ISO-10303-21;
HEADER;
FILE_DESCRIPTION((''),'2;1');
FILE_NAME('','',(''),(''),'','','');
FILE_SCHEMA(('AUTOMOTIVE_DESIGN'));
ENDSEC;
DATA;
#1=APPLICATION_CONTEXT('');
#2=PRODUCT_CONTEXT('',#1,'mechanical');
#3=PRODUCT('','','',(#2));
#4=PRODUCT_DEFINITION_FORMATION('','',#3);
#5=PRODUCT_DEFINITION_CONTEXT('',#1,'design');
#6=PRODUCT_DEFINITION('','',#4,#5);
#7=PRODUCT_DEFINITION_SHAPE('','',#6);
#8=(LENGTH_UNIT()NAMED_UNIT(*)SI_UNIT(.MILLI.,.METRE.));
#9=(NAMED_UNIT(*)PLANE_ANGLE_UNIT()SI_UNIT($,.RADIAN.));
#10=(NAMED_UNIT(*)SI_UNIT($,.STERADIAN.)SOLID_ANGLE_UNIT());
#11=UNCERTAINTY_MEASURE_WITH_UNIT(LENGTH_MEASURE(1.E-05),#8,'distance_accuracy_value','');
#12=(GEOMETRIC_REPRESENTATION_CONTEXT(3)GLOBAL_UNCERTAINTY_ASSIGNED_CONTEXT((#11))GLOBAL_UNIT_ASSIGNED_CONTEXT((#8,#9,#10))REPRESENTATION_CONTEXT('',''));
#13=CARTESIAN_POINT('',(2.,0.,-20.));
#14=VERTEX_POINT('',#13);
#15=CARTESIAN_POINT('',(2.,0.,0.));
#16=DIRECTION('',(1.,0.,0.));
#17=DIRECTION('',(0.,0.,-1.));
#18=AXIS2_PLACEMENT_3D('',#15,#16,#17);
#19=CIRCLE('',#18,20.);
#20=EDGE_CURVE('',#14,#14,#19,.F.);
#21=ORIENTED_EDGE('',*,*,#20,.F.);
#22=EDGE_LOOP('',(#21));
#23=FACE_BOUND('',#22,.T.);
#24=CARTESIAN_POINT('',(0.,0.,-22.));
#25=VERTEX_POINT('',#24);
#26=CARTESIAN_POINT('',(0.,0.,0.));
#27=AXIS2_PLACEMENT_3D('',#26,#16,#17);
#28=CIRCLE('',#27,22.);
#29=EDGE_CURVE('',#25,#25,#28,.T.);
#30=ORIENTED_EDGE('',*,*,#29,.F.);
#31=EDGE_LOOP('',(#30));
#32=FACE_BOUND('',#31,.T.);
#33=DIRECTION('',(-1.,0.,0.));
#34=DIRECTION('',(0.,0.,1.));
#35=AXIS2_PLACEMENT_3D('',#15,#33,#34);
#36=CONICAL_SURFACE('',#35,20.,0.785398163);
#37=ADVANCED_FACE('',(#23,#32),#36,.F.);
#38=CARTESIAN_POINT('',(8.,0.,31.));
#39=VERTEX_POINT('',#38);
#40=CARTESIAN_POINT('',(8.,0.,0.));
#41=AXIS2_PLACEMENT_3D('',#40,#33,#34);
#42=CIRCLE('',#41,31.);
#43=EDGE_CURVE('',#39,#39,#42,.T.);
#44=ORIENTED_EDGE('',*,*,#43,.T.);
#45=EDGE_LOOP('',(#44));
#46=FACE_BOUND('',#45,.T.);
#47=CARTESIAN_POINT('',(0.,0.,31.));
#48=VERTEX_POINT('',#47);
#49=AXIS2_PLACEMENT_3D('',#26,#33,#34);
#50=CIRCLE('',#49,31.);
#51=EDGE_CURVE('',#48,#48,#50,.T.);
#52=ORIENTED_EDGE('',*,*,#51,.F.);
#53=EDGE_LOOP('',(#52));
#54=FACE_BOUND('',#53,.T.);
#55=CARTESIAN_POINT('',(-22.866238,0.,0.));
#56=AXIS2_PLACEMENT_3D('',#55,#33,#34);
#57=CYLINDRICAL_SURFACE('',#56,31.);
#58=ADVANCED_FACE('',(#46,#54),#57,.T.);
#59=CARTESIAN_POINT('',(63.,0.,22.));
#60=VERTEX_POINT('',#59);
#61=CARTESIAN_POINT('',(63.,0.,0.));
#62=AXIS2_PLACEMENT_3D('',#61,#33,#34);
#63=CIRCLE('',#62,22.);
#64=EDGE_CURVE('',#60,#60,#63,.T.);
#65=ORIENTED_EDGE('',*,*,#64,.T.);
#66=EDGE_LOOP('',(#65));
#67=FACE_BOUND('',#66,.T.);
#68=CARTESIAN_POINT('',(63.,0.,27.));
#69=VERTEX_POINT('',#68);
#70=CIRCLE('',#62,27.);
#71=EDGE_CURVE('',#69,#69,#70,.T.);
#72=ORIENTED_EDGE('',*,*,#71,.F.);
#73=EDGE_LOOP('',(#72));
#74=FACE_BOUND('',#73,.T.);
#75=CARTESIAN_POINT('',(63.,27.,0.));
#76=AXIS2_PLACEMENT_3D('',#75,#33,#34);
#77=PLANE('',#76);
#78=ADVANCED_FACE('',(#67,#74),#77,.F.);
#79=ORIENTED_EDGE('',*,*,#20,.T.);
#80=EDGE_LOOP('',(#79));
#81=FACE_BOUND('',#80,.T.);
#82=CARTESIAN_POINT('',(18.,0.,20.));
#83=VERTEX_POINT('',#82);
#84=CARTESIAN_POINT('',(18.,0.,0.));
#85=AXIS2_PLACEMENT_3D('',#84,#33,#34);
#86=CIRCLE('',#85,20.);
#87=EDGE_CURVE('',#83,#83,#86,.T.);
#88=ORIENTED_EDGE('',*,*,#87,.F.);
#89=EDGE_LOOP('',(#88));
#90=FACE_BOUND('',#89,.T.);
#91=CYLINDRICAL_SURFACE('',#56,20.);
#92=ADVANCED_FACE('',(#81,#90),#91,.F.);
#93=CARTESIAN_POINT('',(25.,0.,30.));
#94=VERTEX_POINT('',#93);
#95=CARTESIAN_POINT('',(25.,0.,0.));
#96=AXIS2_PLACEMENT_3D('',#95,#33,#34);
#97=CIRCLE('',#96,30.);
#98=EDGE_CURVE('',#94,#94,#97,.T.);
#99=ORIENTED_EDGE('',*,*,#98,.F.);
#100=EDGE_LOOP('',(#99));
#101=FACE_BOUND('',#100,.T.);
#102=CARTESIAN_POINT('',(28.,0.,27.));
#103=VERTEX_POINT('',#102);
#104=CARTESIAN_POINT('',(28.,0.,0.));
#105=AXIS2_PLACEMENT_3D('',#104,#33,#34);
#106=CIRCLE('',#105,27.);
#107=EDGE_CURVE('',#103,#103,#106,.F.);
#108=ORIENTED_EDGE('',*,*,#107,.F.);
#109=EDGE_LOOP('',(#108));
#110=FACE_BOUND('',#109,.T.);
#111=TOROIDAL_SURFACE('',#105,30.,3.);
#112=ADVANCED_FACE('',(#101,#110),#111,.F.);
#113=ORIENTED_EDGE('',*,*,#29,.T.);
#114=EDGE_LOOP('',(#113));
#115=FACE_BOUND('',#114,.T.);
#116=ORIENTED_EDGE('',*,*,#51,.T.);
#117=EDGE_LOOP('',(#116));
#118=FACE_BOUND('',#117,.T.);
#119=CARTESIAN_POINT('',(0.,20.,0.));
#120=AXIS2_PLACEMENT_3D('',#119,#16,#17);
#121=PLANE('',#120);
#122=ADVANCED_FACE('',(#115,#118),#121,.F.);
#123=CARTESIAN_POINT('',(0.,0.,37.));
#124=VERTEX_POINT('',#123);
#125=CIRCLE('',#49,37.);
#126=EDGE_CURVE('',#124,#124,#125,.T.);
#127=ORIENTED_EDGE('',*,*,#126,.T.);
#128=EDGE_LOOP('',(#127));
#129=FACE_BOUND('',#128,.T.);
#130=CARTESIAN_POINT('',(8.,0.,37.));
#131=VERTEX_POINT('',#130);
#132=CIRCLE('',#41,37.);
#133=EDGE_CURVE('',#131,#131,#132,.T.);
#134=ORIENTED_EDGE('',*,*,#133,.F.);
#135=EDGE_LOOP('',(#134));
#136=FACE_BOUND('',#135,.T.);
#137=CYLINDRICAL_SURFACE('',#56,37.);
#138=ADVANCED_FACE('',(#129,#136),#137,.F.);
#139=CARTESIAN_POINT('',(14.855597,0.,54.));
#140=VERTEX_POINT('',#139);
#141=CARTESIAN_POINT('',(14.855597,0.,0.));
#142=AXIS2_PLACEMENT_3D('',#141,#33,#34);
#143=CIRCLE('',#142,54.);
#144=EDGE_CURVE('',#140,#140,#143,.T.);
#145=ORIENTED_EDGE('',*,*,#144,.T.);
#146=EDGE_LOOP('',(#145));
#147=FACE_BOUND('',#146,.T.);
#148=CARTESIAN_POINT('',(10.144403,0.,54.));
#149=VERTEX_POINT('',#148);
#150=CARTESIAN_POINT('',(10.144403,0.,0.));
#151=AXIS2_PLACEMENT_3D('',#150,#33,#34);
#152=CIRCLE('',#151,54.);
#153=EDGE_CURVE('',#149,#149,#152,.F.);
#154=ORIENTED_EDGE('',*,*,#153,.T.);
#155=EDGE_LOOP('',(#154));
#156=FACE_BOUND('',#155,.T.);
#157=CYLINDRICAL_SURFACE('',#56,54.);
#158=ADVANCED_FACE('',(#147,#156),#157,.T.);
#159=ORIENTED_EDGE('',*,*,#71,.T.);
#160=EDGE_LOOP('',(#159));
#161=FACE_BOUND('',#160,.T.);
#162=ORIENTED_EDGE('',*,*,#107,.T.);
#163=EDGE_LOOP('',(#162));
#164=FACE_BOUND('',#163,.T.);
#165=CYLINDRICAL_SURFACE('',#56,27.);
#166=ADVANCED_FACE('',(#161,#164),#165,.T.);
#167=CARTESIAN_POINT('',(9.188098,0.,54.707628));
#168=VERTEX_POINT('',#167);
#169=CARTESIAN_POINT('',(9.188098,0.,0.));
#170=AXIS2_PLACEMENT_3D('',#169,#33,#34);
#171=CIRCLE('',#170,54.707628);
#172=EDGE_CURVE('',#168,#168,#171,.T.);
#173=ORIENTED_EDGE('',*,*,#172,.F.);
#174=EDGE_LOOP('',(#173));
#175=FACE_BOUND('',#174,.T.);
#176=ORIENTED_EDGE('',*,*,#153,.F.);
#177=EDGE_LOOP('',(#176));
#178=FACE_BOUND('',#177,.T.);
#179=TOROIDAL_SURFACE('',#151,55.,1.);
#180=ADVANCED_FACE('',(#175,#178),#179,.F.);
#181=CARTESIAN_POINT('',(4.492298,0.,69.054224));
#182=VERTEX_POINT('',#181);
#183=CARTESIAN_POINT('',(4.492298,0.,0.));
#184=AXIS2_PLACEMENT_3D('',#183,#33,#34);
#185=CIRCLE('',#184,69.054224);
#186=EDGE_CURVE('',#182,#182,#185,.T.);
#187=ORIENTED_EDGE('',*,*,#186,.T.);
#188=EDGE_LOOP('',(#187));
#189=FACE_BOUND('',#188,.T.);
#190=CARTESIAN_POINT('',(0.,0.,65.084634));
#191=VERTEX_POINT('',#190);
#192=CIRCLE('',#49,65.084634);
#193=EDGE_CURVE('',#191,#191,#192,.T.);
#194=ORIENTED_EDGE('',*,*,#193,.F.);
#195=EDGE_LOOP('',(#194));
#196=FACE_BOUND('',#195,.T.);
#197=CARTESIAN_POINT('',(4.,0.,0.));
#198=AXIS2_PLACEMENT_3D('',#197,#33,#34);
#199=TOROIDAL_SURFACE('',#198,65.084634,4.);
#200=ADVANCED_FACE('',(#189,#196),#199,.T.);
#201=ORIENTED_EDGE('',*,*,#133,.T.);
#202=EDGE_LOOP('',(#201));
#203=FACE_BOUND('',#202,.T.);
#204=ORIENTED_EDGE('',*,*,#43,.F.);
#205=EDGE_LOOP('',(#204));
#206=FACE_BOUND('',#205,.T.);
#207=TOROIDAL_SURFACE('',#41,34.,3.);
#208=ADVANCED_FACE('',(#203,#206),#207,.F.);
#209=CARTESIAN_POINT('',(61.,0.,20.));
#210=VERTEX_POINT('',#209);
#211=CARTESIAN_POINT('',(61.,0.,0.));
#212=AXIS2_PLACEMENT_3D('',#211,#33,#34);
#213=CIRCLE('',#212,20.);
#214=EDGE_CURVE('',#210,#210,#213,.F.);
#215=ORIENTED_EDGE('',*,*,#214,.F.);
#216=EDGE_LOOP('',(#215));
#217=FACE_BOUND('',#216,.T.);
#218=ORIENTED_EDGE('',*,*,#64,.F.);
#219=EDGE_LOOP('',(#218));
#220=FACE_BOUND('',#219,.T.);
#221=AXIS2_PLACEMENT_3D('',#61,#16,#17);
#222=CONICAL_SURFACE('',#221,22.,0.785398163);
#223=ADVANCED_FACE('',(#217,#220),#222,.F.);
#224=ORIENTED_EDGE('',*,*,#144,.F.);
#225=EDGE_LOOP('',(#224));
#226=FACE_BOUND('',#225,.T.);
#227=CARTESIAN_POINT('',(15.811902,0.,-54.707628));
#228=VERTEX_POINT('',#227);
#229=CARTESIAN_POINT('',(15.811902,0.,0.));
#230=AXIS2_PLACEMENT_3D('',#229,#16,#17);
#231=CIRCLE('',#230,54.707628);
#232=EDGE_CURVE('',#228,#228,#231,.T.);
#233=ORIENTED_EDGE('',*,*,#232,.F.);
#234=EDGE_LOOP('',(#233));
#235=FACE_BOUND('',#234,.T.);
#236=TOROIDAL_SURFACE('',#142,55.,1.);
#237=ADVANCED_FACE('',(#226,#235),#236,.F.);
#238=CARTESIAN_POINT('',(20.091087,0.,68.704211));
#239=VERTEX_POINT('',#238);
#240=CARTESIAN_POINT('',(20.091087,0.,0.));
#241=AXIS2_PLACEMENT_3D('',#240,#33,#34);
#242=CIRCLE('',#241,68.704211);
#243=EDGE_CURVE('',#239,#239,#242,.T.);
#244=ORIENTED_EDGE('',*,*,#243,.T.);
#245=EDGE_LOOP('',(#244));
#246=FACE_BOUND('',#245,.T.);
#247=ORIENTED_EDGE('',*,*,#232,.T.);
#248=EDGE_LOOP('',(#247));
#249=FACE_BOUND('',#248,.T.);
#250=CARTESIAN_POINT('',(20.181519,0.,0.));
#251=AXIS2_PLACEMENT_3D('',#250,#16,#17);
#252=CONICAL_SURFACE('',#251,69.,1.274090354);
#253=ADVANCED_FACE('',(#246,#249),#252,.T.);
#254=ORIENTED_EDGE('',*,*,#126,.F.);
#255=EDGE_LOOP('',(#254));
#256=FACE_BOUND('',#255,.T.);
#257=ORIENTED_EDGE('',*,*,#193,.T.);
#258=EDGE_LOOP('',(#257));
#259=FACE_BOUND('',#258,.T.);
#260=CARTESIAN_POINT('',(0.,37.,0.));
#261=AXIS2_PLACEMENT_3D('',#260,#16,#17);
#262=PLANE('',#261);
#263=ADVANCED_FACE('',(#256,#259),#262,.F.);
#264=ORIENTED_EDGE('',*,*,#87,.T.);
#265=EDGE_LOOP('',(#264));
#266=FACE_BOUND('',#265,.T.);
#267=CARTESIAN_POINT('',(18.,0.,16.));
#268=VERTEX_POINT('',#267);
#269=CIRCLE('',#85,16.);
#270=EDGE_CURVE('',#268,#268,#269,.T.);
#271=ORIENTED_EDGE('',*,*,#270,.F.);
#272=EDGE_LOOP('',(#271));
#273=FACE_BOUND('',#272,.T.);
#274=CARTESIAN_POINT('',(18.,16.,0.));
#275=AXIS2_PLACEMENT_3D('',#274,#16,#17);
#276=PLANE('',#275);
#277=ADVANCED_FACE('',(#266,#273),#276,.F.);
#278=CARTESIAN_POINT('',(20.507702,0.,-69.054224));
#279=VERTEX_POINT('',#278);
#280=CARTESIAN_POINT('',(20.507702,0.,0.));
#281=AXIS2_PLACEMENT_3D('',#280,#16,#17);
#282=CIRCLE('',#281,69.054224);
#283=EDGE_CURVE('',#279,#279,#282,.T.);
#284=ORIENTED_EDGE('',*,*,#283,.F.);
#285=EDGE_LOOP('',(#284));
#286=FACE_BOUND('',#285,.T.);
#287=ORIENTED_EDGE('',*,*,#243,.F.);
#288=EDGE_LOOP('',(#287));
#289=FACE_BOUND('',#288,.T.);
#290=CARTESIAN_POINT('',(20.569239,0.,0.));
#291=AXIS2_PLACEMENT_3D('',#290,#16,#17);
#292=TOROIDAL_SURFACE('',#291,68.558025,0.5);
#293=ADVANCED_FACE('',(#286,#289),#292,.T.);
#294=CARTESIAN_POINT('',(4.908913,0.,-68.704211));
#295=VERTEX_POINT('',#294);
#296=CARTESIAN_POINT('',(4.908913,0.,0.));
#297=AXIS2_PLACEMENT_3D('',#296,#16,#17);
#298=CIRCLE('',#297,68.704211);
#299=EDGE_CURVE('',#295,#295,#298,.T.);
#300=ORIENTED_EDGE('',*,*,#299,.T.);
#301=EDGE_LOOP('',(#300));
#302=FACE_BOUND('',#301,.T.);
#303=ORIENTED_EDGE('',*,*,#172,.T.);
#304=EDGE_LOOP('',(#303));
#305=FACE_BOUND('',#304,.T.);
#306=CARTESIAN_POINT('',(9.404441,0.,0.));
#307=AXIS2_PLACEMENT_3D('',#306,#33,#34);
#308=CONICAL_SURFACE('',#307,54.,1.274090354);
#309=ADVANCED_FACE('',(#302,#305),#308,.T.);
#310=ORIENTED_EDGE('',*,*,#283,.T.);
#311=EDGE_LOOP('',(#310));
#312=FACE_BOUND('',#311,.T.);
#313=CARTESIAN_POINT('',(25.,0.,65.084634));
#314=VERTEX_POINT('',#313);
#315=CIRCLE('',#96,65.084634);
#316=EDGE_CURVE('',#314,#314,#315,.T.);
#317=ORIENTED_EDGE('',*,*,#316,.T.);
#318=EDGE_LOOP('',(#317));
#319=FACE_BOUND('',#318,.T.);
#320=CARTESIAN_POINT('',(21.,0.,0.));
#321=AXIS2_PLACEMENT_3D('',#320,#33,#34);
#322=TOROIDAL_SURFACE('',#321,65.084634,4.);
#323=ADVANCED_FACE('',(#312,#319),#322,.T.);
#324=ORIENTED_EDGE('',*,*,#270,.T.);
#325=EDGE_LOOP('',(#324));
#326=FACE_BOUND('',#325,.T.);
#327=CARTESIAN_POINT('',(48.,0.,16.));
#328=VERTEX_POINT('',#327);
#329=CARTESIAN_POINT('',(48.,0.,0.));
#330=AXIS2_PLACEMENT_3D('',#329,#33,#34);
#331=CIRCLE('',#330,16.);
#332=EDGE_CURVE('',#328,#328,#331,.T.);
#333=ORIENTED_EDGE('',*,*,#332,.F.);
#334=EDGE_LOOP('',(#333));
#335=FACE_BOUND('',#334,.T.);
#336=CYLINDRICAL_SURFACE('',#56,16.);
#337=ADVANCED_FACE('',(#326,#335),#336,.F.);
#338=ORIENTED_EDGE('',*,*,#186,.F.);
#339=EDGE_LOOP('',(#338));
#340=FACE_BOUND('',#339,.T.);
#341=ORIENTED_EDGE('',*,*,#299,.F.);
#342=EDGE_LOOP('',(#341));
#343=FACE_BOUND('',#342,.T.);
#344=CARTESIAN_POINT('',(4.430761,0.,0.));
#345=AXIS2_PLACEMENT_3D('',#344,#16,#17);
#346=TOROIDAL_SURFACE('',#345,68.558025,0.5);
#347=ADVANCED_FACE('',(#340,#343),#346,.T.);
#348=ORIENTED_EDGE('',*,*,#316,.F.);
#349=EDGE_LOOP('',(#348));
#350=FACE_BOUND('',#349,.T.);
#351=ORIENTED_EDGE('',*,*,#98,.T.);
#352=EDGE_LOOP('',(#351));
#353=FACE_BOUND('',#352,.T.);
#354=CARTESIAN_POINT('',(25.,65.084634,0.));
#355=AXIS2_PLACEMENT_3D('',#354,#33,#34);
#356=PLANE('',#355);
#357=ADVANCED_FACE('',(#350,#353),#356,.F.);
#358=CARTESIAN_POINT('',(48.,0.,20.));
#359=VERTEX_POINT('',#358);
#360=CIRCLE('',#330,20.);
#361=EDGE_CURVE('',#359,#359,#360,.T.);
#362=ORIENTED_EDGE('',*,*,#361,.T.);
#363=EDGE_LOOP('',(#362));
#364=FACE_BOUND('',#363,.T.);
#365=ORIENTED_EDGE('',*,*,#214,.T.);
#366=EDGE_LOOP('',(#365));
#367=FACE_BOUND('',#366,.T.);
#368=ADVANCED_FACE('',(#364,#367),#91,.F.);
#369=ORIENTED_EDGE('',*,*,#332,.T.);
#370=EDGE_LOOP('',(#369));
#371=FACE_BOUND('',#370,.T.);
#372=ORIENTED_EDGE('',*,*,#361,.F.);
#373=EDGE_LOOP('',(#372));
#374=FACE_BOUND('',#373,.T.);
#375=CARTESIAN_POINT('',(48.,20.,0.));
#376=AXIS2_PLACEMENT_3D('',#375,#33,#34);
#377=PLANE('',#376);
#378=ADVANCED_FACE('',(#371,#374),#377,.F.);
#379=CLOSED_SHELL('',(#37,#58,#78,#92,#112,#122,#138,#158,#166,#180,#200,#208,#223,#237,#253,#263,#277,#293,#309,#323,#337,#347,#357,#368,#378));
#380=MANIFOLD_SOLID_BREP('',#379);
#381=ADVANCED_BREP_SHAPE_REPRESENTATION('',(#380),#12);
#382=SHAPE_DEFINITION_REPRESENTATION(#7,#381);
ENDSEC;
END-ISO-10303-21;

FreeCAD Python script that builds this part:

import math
import FreeCAD as App
import Part
import Sketcher
Q = App.Units.Quantity


def edges_at(feature, points):
    """Names of the edges that pass closest to the given points."""
    edges = feature.Shape.Edges
    near = lambda p: min(range(len(edges)), key=lambda i: edges[i].distToShape(Part.Vertex(*p))[0])
    return sorted({f"Edge{near(p) + 1}" for p in points})

doc = App.newDocument("Part")
body = doc.addObject("PartDesign::Body", "Body")

# Sketch on XY plane
sketch1 = body.newObject("Sketcher::SketchObject", "Sketch")
sketch1.AttachmentSupport = (doc.getObject("XY_Plane"), [""])
sketch1.MapMode = "FlatFace"
sketch1.addGeometry(Part.LineSegment(App.Vector(9.4, 54, 0), App.Vector(4.8, 69, 0)), False)
sketch1.addGeometry(Part.ArcOfCircle(Part.Circle(App.Vector(4, 65.1, 0), App.Vector(0, 0, 1), 4), math.radians(78), math.radians(180)), False)
sketch1.addGeometry(Part.LineSegment(App.Vector(0, 65.1, 0), App.Vector(0, 37, 0)), False)
sketch1.addGeometry(Part.LineSegment(App.Vector(0, 37, 0), App.Vector(8, 37, 0)), False)
sketch1.addGeometry(Part.ArcOfCircle(Part.Circle(App.Vector(8, 34, 0), App.Vector(0, 0, 1), 3), math.radians(-90), math.radians(90)), False)
sketch1.addGeometry(Part.LineSegment(App.Vector(8, 31, 0), App.Vector(0, 31, 0)), False)
sketch1.addGeometry(Part.LineSegment(App.Vector(0, 31, 0), App.Vector(0, 20, 0)), False)
sketch1.addGeometry(Part.LineSegment(App.Vector(0, 20, 0), App.Vector(18, 20, 0)), False)
sketch1.addGeometry(Part.LineSegment(App.Vector(18, 20, 0), App.Vector(18, 16, 0)), False)
sketch1.addGeometry(Part.LineSegment(App.Vector(18, 16, 0), App.Vector(48, 16, 0)), False)
sketch1.addGeometry(Part.LineSegment(App.Vector(48, 16, 0), App.Vector(48, 20, 0)), False)
sketch1.addGeometry(Part.LineSegment(App.Vector(48, 20, 0), App.Vector(63, 20, 0)), False)
sketch1.addGeometry(Part.LineSegment(App.Vector(63, 20, 0), App.Vector(63, 27, 0)), False)
sketch1.addGeometry(Part.LineSegment(App.Vector(63, 27, 0), App.Vector(25, 27, 0)), False)
sketch1.addGeometry(Part.LineSegment(App.Vector(25, 27, 0), App.Vector(25, 65.1, 0)), False)
sketch1.addGeometry(Part.ArcOfCircle(Part.Circle(App.Vector(21, 65.1, 0), App.Vector(0, 0, 1), 4), math.radians(0), math.radians(102)), False)
sketch1.addGeometry(Part.LineSegment(App.Vector(20.2, 69, 0), App.Vector(15.6, 54, 0)), False)
sketch1.addGeometry(Part.LineSegment(App.Vector(15.6, 54, 0), App.Vector(9.4, 54, 0)), False)
sketch1.addConstraint(Sketcher.Constraint("Coincident", 0, 2, 1, 1))
sketch1.addConstraint(Sketcher.Constraint("Tangent", 1, 2, 2, 1))
sketch1.addConstraint(Sketcher.Constraint("Coincident", 2, 2, 3, 1))
sketch1.addConstraint(Sketcher.Constraint("Tangent", 3, 2, 4, 2))
sketch1.addConstraint(Sketcher.Constraint("Tangent", 4, 1, 5, 1))
sketch1.addConstraint(Sketcher.Constraint("Coincident", 5, 2, 6, 1))
sketch1.addConstraint(Sketcher.Constraint("Coincident", 6, 2, 7, 1))
sketch1.addConstraint(Sketcher.Constraint("Coincident", 7, 2, 8, 1))
sketch1.addConstraint(Sketcher.Constraint("Coincident", 8, 2, 9, 1))
sketch1.addConstraint(Sketcher.Constraint("Coincident", 9, 2, 10, 1))
sketch1.addConstraint(Sketcher.Constraint("Coincident", 10, 2, 11, 1))
sketch1.addConstraint(Sketcher.Constraint("Coincident", 11, 2, 12, 1))
sketch1.addConstraint(Sketcher.Constraint("Coincident", 12, 2, 13, 1))
sketch1.addConstraint(Sketcher.Constraint("Coincident", 13, 2, 14, 1))
sketch1.addConstraint(Sketcher.Constraint("Tangent", 14, 2, 15, 1))
sketch1.addConstraint(Sketcher.Constraint("Coincident", 15, 2, 16, 1))
sketch1.addConstraint(Sketcher.Constraint("Coincident", 16, 2, 17, 1))
sketch1.addConstraint(Sketcher.Constraint("Coincident", 17, 2, 0, 1))
sketch1.addConstraint(Sketcher.Constraint("Vertical", 2))
sketch1.addConstraint(Sketcher.Constraint("Horizontal", 3))
sketch1.addConstraint(Sketcher.Constraint("Horizontal", 5))
sketch1.addConstraint(Sketcher.Constraint("Vertical", 6))
sketch1.addConstraint(Sketcher.Constraint("Horizontal", 7))
sketch1.addConstraint(Sketcher.Constraint("Vertical", 8))
sketch1.addConstraint(Sketcher.Constraint("Horizontal", 9))
sketch1.addConstraint(Sketcher.Constraint("Vertical", 10))
sketch1.addConstraint(Sketcher.Constraint("Horizontal", 11))
sketch1.addConstraint(Sketcher.Constraint("Vertical", 12))
sketch1.addConstraint(Sketcher.Constraint("Horizontal", 13))
sketch1.addConstraint(Sketcher.Constraint("Vertical", 14))
sketch1.addConstraint(Sketcher.Constraint("Horizontal", 17))
sketch1.addConstraint(Sketcher.Constraint("Equal", 1, 15))
sketch1.addConstraint(Sketcher.Constraint("PointOnObject", 1, 2, -2))
sketch1.addConstraint(Sketcher.Constraint("PointOnObject", 5, 2, -2))
sketch1.addConstraint(Sketcher.Constraint("Horizontal", 1, 3, 15, 3))
sketch1.addConstraint(Sketcher.Constraint("Horizontal", 7, 2, 10, 2))
sketch1.addConstraint(Sketcher.Constraint("Horizontal", 0, 2, 15, 2))
sketch1.addConstraint(Sketcher.Constraint("Equal", 0, 16))
sketch1.addConstraint(Sketcher.Constraint("Radius", 1, 4.0))
sketch1.addConstraint(Sketcher.Constraint("Radius", 4, 3.0))
sketch1.addConstraint(Sketcher.Constraint("DistanceX", 3, 1, 3, 2, 8.0))
sketch1.addConstraint(Sketcher.Constraint("DistanceX", 7, 1, 7, 2, 18.0))
sketch1.addConstraint(Sketcher.Constraint("DistanceX", 9, 1, 9, 2, 30.0))
sketch1.addConstraint(Sketcher.Constraint("DistanceX", 11, 1, 11, 2, 15.0))
sketch1.addConstraint(Sketcher.Constraint("DistanceX", 13, 2, 13, 1, 38.0))
sketch1.addConstraint(Sketcher.Constraint("DistanceY", 6, 2, 6, 1, 11.0))
sketch1.addConstraint(Sketcher.Constraint("DistanceY", 8, 2, 8, 1, 4.0))
sketch1.addConstraint(Sketcher.Constraint("DistanceY", 12, 1, 12, 2, 7.0))
sketch1.addConstraint(Sketcher.Constraint("Angle", 0, Q("107 deg")))
sketch1.addConstraint(Sketcher.Constraint("DistanceY", -1, 1, 4, 3, 34.0))
sketch1.addConstraint(Sketcher.Constraint("DistanceY", -1, 1, 0, 2, 69.0))
sketch1.addConstraint(Sketcher.Constraint("DistanceY", -1, 1, 16, 2, 54.0))
sketch1.addConstraint(Sketcher.Constraint("DistanceX", 17, 2, 17, 1, 6.191117))
revolution = body.newObject("PartDesign::Revolution", "Revolution")
revolution.Profile = sketch1
revolution.ReferenceAxis = (sketch1, ["H_Axis"])
revolution.Angle = 360
doc.recompute()

fillet = body.newObject("PartDesign::Fillet", "Fillet")
fillet.Base = (revolution, edges_at(revolution, [(20.182, 0, -69), (4.818, 0, -69)]))
fillet.Radius = 0.5
doc.recompute()

fillet2 = body.newObject("PartDesign::Fillet", "Fillet001")
fillet2.Base = (fillet, edges_at(fillet, [(15.596, 0, -54), (9.404, 0, -54)]))
fillet2.Radius = 1
doc.recompute()

fillet3 = body.newObject("PartDesign::Fillet", "Fillet002")
fillet3.Base = (fillet2, edges_at(fillet2, [(25, 0, -27)]))
fillet3.Radius = 3
doc.recompute()

chamfer = body.newObject("PartDesign::Chamfer", "Chamfer")
chamfer.Base = (fillet3, edges_at(fillet3, [(0, 0, -20), (63, 0, -20)]))
chamfer.Size = 2

doc.recompute()
